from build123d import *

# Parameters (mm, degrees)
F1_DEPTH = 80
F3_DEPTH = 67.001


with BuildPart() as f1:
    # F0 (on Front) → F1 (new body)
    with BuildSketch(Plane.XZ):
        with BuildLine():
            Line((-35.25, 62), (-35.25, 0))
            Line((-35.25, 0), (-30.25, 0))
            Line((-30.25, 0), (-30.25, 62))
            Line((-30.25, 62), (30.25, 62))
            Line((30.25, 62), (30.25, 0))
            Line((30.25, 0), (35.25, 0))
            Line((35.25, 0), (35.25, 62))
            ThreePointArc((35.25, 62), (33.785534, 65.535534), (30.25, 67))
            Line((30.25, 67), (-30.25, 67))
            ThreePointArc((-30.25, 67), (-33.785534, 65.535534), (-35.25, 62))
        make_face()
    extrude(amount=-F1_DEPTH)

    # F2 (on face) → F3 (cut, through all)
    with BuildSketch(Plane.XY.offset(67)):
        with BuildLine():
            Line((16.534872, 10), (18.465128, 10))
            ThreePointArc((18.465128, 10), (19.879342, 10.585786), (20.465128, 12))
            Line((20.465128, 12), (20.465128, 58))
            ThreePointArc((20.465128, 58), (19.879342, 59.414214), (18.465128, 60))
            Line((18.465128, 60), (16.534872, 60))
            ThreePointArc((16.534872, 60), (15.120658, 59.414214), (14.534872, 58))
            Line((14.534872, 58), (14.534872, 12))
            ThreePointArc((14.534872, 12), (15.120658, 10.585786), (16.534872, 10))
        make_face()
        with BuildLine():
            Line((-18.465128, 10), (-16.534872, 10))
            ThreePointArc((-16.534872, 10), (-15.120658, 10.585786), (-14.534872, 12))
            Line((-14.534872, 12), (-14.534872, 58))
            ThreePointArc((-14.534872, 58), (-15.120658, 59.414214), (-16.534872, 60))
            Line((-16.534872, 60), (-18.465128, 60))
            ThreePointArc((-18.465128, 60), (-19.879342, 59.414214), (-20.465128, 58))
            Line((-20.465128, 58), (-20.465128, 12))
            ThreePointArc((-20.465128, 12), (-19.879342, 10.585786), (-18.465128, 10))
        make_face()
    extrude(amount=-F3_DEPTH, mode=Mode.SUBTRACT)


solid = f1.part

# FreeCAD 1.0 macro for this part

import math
import FreeCAD as App
import Part
import Sketcher
Q = App.Units.Quantity

doc = App.newDocument("Part")
params = doc.addObject("Spreadsheet::Sheet", "Params")
for row, (alias, value) in enumerate([
    ("sketch1_radius", "5 mm"),
    ("sketch1_height", "62 mm"),
    ("sketch1_width", "60.5 mm"),
    ("pad1_length", "80 mm"),
    ("sketch2_radius", "1.999999 mm"),
    ("sketch2_height", "46 mm"),
], start=1):
    params.set(f"A{row}", alias)
    params.set(f"B{row}", "=" + value)
    params.setAlias(f"B{row}", alias)

body = doc.addObject("PartDesign::Body", "Body")

# Sketch on XZ plane
sketch1 = doc.addObject("Sketcher::SketchObject", "Sketch")
body.addObject(sketch1)
sketch1.AttachmentSupport = (doc.XZ_Plane, [""])
sketch1.MapMode = "FlatFace"
sketch1.addGeometry([
    Part.LineSegment(App.Vector(-35.25, 62, 0), App.Vector(-35.25, 0, 0)),  # 0
    Part.LineSegment(App.Vector(-35.25, 0, 0), App.Vector(-30.25, 0, 0)),  # 1
    Part.LineSegment(App.Vector(-30.25, 0, 0), App.Vector(-30.25, 62, 0)),  # 2
    Part.LineSegment(App.Vector(-30.25, 62, 0), App.Vector(30.25, 62, 0)),  # 3
    Part.LineSegment(App.Vector(30.25, 62, 0), App.Vector(30.25, 0, 0)),  # 4
    Part.LineSegment(App.Vector(30.25, 0, 0), App.Vector(35.25, 0, 0)),  # 5
    Part.LineSegment(App.Vector(35.25, 0, 0), App.Vector(35.25, 62, 0)),  # 6
    Part.ArcOfCircle(Part.Circle(App.Vector(30.25, 62, 0), App.Vector(0, 0, 1), 5), math.radians(-0.000004), math.radians(90.000004)),  # 7
    Part.LineSegment(App.Vector(30.25, 67, 0), App.Vector(-30.25, 67, 0)),  # 8
    Part.ArcOfCircle(Part.Circle(App.Vector(-30.25, 62, 0), App.Vector(0, 0, 1), 5), math.radians(89.999996), math.radians(180.000004)),  # 9
], False)
sketch1.addConstraint([
    Sketcher.Constraint("Coincident", 0, 2, 1, 1),
    Sketcher.Constraint("Coincident", 1, 2, 2, 1),
    Sketcher.Constraint("Coincident", 2, 2, 3, 1),
    Sketcher.Constraint("Coincident", 3, 2, 4, 1),
    Sketcher.Constraint("Coincident", 4, 2, 5, 1),
    Sketcher.Constraint("Coincident", 5, 2, 6, 1),
    Sketcher.Constraint("Tangent", 6, 2, 7, 1),
    Sketcher.Constraint("Tangent", 7, 2, 8, 1),
    Sketcher.Constraint("Tangent", 8, 2, 9, 1),
    Sketcher.Constraint("Tangent", 9, 2, 0, 1),
    Sketcher.Constraint("Vertical", 0),
    Sketcher.Constraint("Horizontal", 1),
    Sketcher.Constraint("Vertical", 2),
    Sketcher.Constraint("Horizontal", 3),
    Sketcher.Constraint("Vertical", 4),
    Sketcher.Constraint("Horizontal", 5),
    Sketcher.Constraint("Vertical", 6),
    Sketcher.Constraint("Horizontal", 8),
    Sketcher.Constraint("Coincident", 2, 2, 9, 3),
    Sketcher.Constraint("Coincident", 3, 2, 7, 3),
    Sketcher.Constraint("Symmetric", 1, 2, 4, 2, -1, 1),
    Sketcher.Constraint("PointOnObject", 0, 2, -1),
    Sketcher.Constraint("Radius", 7, Q("5 mm")),
    Sketcher.Constraint("DistanceY", 0, 2, 0, 1, Q("62 mm")),
    Sketcher.Constraint("DistanceX", 3, 1, 3, 2, Q("60.5 mm")),
])
sketch1.setExpression("Constraints[22]", "Params.sketch1_radius")
sketch1.setExpression("Constraints[23]", "Params.sketch1_height")
sketch1.setExpression("Constraints[24]", "Params.sketch1_width")
pad1 = doc.addObject("PartDesign::Pad", "Pad")
body.addObject(pad1)
pad1.Profile = sketch1
pad1.setExpression("Length", "Params.pad1_length")
pad1.Reversed = True

# Sketch on XY plane
sketch2 = doc.addObject("Sketcher::SketchObject", "Sketch001")
body.addObject(sketch2)
sketch2.AttachmentSupport = (doc.XY_Plane, [""])
sketch2.MapMode = "FlatFace"
sketch2.AttachmentOffset = App.Placement(App.Vector(0, 0, 67), App.Rotation())
sketch2.addGeometry([
    Part.LineSegment(App.Vector(16.534872, 10, 0), App.Vector(18.465128, 10, 0)),  # 0
    Part.ArcOfCircle(Part.Circle(App.Vector(18.465129, 11.999999, 0), App.Vector(0, 0, 1), 1.999999), math.radians(-90.000043), math.radians(0.000043)),  # 1
    Part.LineSegment(App.Vector(20.465128, 12, 0), App.Vector(20.465128, 58, 0)),  # 2
    Part.ArcOfCircle(Part.Circle(App.Vector(18.465129, 58.000001, 0), App.Vector(0, 0, 1), 1.999999), math.radians(-0.000043), math.radians(90.000043)),  # 3
    Part.LineSegment(App.Vector(18.465128, 60, 0), App.Vector(16.534872, 60, 0)),  # 4
    Part.ArcOfCircle(Part.Circle(App.Vector(16.534871, 58.000001, 0), App.Vector(0, 0, 1), 1.999999), math.radians(89.999957), math.radians(180.000043)),  # 5
    Part.LineSegment(App.Vector(14.534872, 58, 0), App.Vector(14.534872, 12, 0)),  # 6
    Part.ArcOfCircle(Part.Circle(App.Vector(16.534871, 11.999999, 0), App.Vector(0, 0, 1), 1.999999), math.radians(179.999957), math.radians(270.000043)),  # 7
    Part.LineSegment(App.Vector(-18.465128, 10, 0), App.Vector(-16.534872, 10, 0)),  # 8
    Part.ArcOfCircle(Part.Circle(App.Vector(-16.534871, 11.999999, 0), App.Vector(0, 0, 1), 1.999999), math.radians(-90.000043), math.radians(0.000043)),  # 9
    Part.LineSegment(App.Vector(-14.534872, 12, 0), App.Vector(-14.534872, 58, 0)),  # 10
    Part.ArcOfCircle(Part.Circle(App.Vector(-16.534871, 58.000001, 0), App.Vector(0, 0, 1), 1.999999), math.radians(-0.000043), math.radians(90.000043)),  # 11
    Part.LineSegment(App.Vector(-16.534872, 60, 0), App.Vector(-18.465128, 60, 0)),  # 12
    Part.ArcOfCircle(Part.Circle(App.Vector(-18.465129, 58.000001, 0), App.Vector(0, 0, 1), 1.999999), math.radians(89.999957), math.radians(180.000043)),  # 13
    Part.LineSegment(App.Vector(-20.465128, 58, 0), App.Vector(-20.465128, 12, 0)),  # 14
    Part.ArcOfCircle(Part.Circle(App.Vector(-18.465129, 11.999999, 0), App.Vector(0, 0, 1), 1.999999), math.radians(179.999957), math.radians(270.000043)),  # 15
], False)
sketch2.addConstraint([
    Sketcher.Constraint("Tangent", 0, 2, 1, 1),
    Sketcher.Constraint("Tangent", 1, 2, 2, 1),
    Sketcher.Constraint("Tangent", 2, 2, 3, 1),
    Sketcher.Constraint("Tangent", 3, 2, 4, 1),
    Sketcher.Constraint("Tangent", 4, 2, 5, 1),
    Sketcher.Constraint("Tangent", 5, 2, 6, 1),
    Sketcher.Constraint("Tangent", 6, 2, 7, 1),
    Sketcher.Constraint("Tangent", 7, 2, 0, 1),
    Sketcher.Constraint("Tangent", 8, 2, 9, 1),
    Sketcher.Constraint("Tangent", 9, 2, 10, 1),
    Sketcher.Constraint("Tangent", 10, 2, 11, 1),
    Sketcher.Constraint("Tangent", 11, 2, 12, 1),
    Sketcher.Constraint("Tangent", 12, 2, 13, 1),
    Sketcher.Constraint("Tangent", 13, 2, 14, 1),
    Sketcher.Constraint("Tangent", 14, 2, 15, 1),
    Sketcher.Constraint("Tangent", 15, 2, 8, 1),
    Sketcher.Constraint("Horizontal", 0),
    Sketcher.Constraint("Vertical", 2),
    Sketcher.Constraint("Horizontal", 4),
    Sketcher.Constraint("Vertical", 6),
    Sketcher.Constraint("Horizontal", 8),
    Sketcher.Constraint("Vertical", 10),
    Sketcher.Constraint("Horizontal", 12),
    Sketcher.Constraint("Vertical", 14),
    Sketcher.Constraint("Equal", 1, 3),
    Sketcher.Constraint("Equal", 3, 5),
    Sketcher.Constraint("Equal", 5, 7),
    Sketcher.Constraint("Equal", 7, 9),
    Sketcher.Constraint("Equal", 9, 11),
    Sketcher.Constraint("Equal", 11, 13),
    Sketcher.Constraint("Equal", 13, 15),
    Sketcher.Constraint("Symmetric", 7, 3, 9, 3, -2),
    Sketcher.Constraint("Symmetric", 3, 3, 13, 3, -2),
    Sketcher.Constraint("Radius", 1, Q("1.999999 mm")),
    Sketcher.Constraint("DistanceY", 2, 1, 2, 2, Q("46 mm")),
    Sketcher.Constraint("DistanceY", -1, 1, 1, 3, Q("11.999999 mm")),
    Sketcher.Constraint("DistanceX", 9, 3, 1, 3, Q("35 mm")),
    Sketcher.Constraint("DistanceX", 0, 1, 0, 2, Q("1.930256 mm")),
])
sketch2.setExpression("Constraints[33]", "Params.sketch2_radius")
sketch2.setExpression("Constraints[34]", "Params.sketch2_height")
pocket1 = doc.addObject("PartDesign::Pocket", "Pocket")
body.addObject(pocket1)
pocket1.Profile = sketch2
pocket1.Type = "ThroughAll"

doc.recompute()
